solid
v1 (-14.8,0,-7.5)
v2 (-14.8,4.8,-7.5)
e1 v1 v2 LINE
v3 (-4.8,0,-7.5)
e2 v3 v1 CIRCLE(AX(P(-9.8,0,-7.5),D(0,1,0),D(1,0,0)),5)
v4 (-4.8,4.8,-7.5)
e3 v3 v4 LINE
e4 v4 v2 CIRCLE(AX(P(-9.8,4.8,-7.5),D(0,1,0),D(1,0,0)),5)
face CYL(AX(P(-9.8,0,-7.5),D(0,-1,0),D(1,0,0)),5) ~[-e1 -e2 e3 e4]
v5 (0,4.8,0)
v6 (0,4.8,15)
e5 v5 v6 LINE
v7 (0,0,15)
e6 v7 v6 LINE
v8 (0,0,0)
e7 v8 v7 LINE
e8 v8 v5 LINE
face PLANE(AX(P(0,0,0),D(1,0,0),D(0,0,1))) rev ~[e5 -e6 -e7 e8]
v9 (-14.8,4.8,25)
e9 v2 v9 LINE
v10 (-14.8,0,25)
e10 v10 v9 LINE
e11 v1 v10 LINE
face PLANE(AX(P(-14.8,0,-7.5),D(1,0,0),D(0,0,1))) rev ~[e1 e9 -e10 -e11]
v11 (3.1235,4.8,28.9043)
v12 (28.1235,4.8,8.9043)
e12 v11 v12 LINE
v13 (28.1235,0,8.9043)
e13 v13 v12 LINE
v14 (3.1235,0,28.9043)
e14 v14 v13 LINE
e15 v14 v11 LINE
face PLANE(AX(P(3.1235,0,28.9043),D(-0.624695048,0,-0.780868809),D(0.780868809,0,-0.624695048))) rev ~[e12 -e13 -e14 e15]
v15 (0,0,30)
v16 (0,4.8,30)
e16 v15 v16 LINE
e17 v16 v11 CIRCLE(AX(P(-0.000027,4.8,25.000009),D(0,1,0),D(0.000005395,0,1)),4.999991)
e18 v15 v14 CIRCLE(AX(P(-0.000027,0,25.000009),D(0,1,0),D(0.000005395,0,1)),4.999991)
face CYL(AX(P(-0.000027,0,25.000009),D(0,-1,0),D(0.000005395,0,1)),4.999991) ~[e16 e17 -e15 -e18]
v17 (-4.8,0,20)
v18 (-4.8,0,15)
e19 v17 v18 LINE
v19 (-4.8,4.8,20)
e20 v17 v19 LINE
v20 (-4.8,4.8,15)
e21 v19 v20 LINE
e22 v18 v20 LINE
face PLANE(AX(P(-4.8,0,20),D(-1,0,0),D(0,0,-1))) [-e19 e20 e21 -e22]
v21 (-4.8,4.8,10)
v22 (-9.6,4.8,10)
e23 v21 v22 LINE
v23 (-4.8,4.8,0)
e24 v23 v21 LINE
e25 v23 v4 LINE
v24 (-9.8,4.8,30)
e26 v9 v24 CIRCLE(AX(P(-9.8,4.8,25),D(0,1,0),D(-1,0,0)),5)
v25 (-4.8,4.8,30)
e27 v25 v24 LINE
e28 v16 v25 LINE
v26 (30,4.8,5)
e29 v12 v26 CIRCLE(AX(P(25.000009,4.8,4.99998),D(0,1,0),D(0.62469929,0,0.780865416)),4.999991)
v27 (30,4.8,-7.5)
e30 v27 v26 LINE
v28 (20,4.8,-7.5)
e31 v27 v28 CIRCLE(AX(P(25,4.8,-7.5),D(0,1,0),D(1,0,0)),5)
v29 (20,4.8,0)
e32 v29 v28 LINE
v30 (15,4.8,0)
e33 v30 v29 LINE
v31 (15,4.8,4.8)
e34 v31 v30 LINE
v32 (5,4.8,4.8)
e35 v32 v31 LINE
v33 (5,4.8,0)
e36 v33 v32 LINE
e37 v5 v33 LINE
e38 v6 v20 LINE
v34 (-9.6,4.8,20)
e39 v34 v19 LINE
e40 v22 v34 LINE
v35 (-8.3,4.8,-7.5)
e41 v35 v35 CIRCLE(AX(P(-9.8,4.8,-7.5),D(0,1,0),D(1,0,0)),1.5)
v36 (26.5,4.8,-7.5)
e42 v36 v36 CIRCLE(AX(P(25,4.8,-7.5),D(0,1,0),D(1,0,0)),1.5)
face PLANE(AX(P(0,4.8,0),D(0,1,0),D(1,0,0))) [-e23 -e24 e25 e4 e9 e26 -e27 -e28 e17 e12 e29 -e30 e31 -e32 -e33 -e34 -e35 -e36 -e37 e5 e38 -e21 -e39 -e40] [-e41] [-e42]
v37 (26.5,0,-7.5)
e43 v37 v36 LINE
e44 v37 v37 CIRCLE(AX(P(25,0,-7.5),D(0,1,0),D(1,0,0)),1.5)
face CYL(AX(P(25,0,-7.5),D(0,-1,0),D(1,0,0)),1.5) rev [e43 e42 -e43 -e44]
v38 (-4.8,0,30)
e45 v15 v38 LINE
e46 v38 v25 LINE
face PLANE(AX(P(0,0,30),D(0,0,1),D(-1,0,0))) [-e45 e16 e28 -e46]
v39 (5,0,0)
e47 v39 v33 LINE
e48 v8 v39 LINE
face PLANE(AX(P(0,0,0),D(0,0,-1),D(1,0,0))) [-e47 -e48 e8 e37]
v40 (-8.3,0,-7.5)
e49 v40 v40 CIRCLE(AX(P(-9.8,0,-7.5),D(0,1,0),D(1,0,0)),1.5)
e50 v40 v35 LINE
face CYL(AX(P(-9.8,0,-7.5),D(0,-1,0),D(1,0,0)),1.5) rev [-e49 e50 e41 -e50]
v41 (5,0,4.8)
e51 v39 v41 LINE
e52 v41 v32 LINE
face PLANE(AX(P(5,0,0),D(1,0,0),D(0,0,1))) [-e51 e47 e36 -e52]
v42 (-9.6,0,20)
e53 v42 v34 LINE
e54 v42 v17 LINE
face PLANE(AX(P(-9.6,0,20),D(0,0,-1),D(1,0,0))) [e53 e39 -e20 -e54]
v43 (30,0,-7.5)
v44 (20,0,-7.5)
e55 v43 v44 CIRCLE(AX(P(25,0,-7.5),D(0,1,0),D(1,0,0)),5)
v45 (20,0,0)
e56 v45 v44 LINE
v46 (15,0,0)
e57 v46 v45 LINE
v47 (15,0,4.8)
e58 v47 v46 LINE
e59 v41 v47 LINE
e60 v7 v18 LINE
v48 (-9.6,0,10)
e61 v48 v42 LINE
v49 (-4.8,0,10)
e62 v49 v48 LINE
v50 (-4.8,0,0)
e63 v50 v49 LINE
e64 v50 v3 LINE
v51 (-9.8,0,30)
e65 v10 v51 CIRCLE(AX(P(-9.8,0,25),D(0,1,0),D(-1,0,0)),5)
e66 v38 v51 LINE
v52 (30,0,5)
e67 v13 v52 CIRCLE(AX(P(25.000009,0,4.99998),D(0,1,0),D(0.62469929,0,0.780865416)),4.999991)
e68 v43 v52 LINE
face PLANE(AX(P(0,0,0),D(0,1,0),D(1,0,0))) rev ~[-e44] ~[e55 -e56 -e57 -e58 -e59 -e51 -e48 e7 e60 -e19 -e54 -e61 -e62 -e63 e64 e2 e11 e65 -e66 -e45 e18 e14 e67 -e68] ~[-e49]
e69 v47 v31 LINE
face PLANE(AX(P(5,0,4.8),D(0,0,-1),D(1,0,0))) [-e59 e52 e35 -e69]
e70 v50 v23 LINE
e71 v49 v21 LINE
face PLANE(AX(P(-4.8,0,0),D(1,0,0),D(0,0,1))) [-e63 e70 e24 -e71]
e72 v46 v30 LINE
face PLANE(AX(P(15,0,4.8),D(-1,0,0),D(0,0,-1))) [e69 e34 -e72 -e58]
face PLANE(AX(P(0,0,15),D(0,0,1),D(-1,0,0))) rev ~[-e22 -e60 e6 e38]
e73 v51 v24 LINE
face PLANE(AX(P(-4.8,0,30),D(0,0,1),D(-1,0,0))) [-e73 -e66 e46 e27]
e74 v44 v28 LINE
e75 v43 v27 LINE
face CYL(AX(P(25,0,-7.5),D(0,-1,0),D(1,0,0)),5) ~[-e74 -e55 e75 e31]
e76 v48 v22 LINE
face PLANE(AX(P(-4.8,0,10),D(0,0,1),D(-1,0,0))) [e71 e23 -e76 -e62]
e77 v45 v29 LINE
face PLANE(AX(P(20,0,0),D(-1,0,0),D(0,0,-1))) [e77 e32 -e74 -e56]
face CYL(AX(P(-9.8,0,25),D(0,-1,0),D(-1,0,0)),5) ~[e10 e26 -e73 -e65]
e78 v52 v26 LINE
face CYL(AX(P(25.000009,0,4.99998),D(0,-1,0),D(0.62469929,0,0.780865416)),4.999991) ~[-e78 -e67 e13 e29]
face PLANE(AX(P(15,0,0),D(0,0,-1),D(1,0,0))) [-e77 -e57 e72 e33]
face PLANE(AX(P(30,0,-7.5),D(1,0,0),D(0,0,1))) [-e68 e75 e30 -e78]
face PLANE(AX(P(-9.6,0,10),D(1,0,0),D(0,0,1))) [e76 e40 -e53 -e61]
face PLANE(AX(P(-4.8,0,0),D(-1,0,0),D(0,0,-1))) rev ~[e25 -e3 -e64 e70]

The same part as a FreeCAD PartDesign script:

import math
import FreeCAD as App
import Part
import Sketcher
from FreeCAD import Vector
Q = App.Units.Quantity

doc = App.newDocument("Part")
body = doc.addObject("PartDesign::Body", "Body")

# Sketch on XZ plane
sketch1 = doc.addObject("Sketcher::SketchObject", "Sketch")
body.addObject(sketch1)
sketch1.AttachmentSupport = (doc.XZ_Plane, [""])
sketch1.MapMode = "FlatFace"
sketch1.addGeometry([
    Part.LineSegment(Vector(-4.8, 10, 0), Vector(-4.8, -7.5, 0)),  # 0
    Part.ArcOfCircle(Part.Circle(Vector(-9.8, -7.5, 0), Vector(0, 0, 1), 5), math.radians(180), math.radians(360)),  # 1
    Part.LineSegment(Vector(-14.8, -7.5, 0), Vector(-14.8, 25, 0)),  # 2
    Part.ArcOfCircle(Part.Circle(Vector(-9.8, 25, 0), Vector(0, 0, 1), 5), math.radians(90), math.radians(180)),  # 3
    Part.LineSegment(Vector(-9.8, 30, 0), Vector(0, 30, 0)),  # 4
    Part.ArcOfCircle(Part.Circle(Vector(0, 25, 0), Vector(0, 0, 1), 4.999981), math.radians(51.339655), math.radians(90)),  # 5
    Part.LineSegment(Vector(3.1235, 28.9043, 0), Vector(28.1235, 8.9043, 0)),  # 6
    Part.ArcOfCircle(Part.Circle(Vector(25, 5, 0), Vector(0, 0, 1), 5), math.radians(0), math.radians(51.339655)),  # 7
    Part.LineSegment(Vector(30, 5, 0), Vector(30, -7.5, 0)),  # 8
    Part.ArcOfCircle(Part.Circle(Vector(25, -7.5, 0), Vector(0, 0, 1), 5), math.radians(180), math.radians(360)),  # 9
    Part.LineSegment(Vector(20, -7.5, 0), Vector(20, 0, 0)),  # 10
    Part.LineSegment(Vector(20, 0, 0), Vector(15, 0, 0)),  # 11
    Part.LineSegment(Vector(15, 0, 0), Vector(15, 4.8, 0)),  # 12
    Part.LineSegment(Vector(15, 4.8, 0), Vector(5, 4.8, 0)),  # 13
    Part.LineSegment(Vector(5, 4.8, 0), Vector(5, 0, 0)),  # 14
    Part.LineSegment(Vector(5, 0, 0), Vector(0, 0, 0)),  # 15
    Part.LineSegment(Vector(0, 0, 0), Vector(0, 15, 0)),  # 16
    Part.LineSegment(Vector(0, 15, 0), Vector(-4.8, 15, 0)),  # 17
    Part.LineSegment(Vector(-4.8, 15, 0), Vector(-4.8, 20, 0)),  # 18
    Part.LineSegment(Vector(-4.8, 20, 0), Vector(-9.6, 20, 0)),  # 19
    Part.LineSegment(Vector(-9.6, 20, 0), Vector(-9.6, 10, 0)),  # 20
    Part.LineSegment(Vector(-9.6, 10, 0), Vector(-4.8, 10, 0)),  # 21
    Part.Circle(Vector(-9.8, -7.5, 0), Vector(0, 0, 1), 1.5),  # 22
    Part.Circle(Vector(25, -7.5, 0), Vector(0, 0, 1), 1.5),  # 23
], False)
sketch1.addConstraint([
    Sketcher.Constraint("Tangent", 0, 2, 1, 2),
    Sketcher.Constraint("Tangent", 1, 1, 2, 1),
    Sketcher.Constraint("Tangent", 2, 2, 3, 2),
    Sketcher.Constraint("Tangent", 3, 1, 4, 1),
    Sketcher.Constraint("Tangent", 4, 2, 5, 2),
    Sketcher.Constraint("Tangent", 5, 1, 6, 1),
    Sketcher.Constraint("Tangent", 6, 2, 7, 2),
    Sketcher.Constraint("Tangent", 7, 1, 8, 1),
    Sketcher.Constraint("Tangent", 8, 2, 9, 2),
    Sketcher.Constraint("Tangent", 9, 1, 10, 1),
    Sketcher.Constraint("Coincident", 10, 2, 11, 1),
    Sketcher.Constraint("Coincident", 11, 2, 12, 1),
    Sketcher.Constraint("Coincident", 12, 2, 13, 1),
    Sketcher.Constraint("Coincident", 13, 2, 14, 1),
    Sketcher.Constraint("Coincident", 14, 2, 15, 1),
    Sketcher.Constraint("Coincident", 15, 2, 16, 1),
    Sketcher.Constraint("Coincident", 16, 2, 17, 1),
    Sketcher.Constraint("Coincident", 17, 2, 18, 1),
    Sketcher.Constraint("Coincident", 18, 2, 19, 1),
    Sketcher.Constraint("Coincident", 19, 2, 20, 1),
    Sketcher.Constraint("Coincident", 20, 2, 21, 1),
    Sketcher.Constraint("Coincident", 21, 2, 0, 1),
    Sketcher.Constraint("Vertical", 0),
    Sketcher.Constraint("Vertical", 2),
    Sketcher.Constraint("Horizontal", 4),
    Sketcher.Constraint("Vertical", 8),
    Sketcher.Constraint("Vertical", 10),
    Sketcher.Constraint("Horizontal", 11),
    Sketcher.Constraint("Vertical", 12),
    Sketcher.Constraint("Horizontal", 13),
    Sketcher.Constraint("Vertical", 14),
    Sketcher.Constraint("Horizontal", 15),
    Sketcher.Constraint("Vertical", 16),
    Sketcher.Constraint("Horizontal", 17),
    Sketcher.Constraint("Vertical", 18),
    Sketcher.Constraint("Horizontal", 19),
    Sketcher.Constraint("Vertical", 20),
    Sketcher.Constraint("Horizontal", 21),
    Sketcher.Constraint("Coincident", 15, 2, -1, 1),
    Sketcher.Constraint("Coincident", 22, 3, 1, 3),
    Sketcher.Constraint("Coincident", 23, 3, 9, 3),
    Sketcher.Constraint("Equal", 1, 3),
    Sketcher.Constraint("Equal", 3, 5),
    Sketcher.Constraint("Equal", 5, 7),
    Sketcher.Constraint("Equal", 7, 9),
    Sketcher.Constraint("Equal", 22, 23),
    Sketcher.Constraint("PointOnObject", 5, 3, -2),
    Sketcher.Constraint("PointOnObject", 10, 2, -1),
    Sketcher.Constraint("Horizontal", 1, 3, 9, 3),
    Sketcher.Constraint("Vertical", 0, 2, 17, 2),
    Sketcher.Constraint("Equal", 11, 15),
    Sketcher.Constraint("Equal", 17, 19),
    Sketcher.Constraint("Equal", 21, 12),
    Sketcher.Constraint("Equal", 15, 18),
    Sketcher.Constraint("Equal", 13, 20),
    Sketcher.Constraint("Diameter", 22, Q("3 mm")),
    Sketcher.Constraint("Radius", 1, Q("5 mm")),
    Sketcher.Constraint("DistanceX", 11, 2, 11, 1, Q("5 mm")),
    Sketcher.Constraint("DistanceX", 13, 2, 13, 1, Q("10 mm")),
    Sketcher.Constraint("DistanceY", 16, 1, 16, 2, Q("15 mm")),
    Sketcher.Constraint("DistanceX", 17, 2, 17, 1, Q("4.8 mm")),
    Sketcher.Constraint("DistanceY", 10, 1, 10, 2, Q("7.5 mm")),
    Sketcher.Constraint("DistanceY", -1, 1, 7, 3, Q("5 mm")),
    Sketcher.Constraint("DistanceY", 16, 2, 5, 3, Q("10 mm")),
])
pad1 = doc.addObject("PartDesign::Pad", "Pad")
body.addObject(pad1)
pad1.Profile = sketch1
pad1.Length = 4.8
pad1.Reversed = True

doc.recompute()
